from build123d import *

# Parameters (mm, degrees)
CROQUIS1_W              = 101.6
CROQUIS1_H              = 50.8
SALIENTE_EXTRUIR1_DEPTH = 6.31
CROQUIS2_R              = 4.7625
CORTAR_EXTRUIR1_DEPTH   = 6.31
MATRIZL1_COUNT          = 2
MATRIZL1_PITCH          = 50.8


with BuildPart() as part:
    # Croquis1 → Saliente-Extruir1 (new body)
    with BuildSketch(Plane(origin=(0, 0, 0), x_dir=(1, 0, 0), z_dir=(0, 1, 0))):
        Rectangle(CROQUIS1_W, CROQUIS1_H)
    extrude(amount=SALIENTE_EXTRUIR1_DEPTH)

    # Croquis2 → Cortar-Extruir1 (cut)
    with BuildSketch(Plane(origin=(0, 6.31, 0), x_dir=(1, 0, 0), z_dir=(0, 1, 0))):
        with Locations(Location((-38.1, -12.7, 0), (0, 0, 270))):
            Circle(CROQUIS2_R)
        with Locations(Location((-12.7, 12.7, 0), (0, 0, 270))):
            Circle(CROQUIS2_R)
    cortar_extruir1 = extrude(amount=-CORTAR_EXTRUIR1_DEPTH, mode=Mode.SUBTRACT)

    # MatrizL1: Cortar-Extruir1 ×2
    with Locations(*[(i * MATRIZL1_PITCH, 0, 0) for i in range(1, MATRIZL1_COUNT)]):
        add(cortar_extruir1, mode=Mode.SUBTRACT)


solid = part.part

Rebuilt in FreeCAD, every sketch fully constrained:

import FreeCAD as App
import Part
import Sketcher
Q = App.Units.Quantity


def add_polygon(sketch, points):
    """Adds a closed chain of lines whose ends are joined by coincident constraints."""
    first, n = sketch.GeometryCount, len(points)
    for a, b in zip(points, points[1:] + points[:1]):
        sketch.addGeometry(Part.LineSegment(App.Vector(*a, 0), App.Vector(*b, 0)), False)
    for i in range(n):
        sketch.addConstraint(Sketcher.Constraint("Coincident", first + i, 2, first + (i + 1) % n, 1))

doc = App.newDocument("Part")
body = doc.addObject("PartDesign::Body", "Body")

# Sketch on XZ plane
sketch1 = doc.addObject("Sketcher::SketchObject", "Sketch")
body.addObject(sketch1)
sketch1.AttachmentSupport = (doc.XZ_Plane, [""])
sketch1.MapMode = "FlatFace"
add_polygon(sketch1, [(-51, -25), (-51, 25), (51, 25), (51, -25)])  # lines 0-3
sketch1.addConstraint([
    Sketcher.Constraint("Vertical", 0),
    Sketcher.Constraint("Horizontal", 1),
    Sketcher.Constraint("Vertical", 2),
    Sketcher.Constraint("Horizontal", 3),
    Sketcher.Constraint("Symmetric", 0, 2, 2, 2, -1, 1),
    Sketcher.Constraint("DistanceX", 1, 1, 1, 2, Q("4 in")),
    Sketcher.Constraint("DistanceY", 0, 1, 0, 2, Q("2 in")),
])
pad1 = doc.addObject("PartDesign::Pad", "Pad")
body.addObject(pad1)
pad1.Profile = sketch1
pad1.Length = 6.31
pad1.Reversed = True

# Sketch on XZ plane
sketch2 = doc.addObject("Sketcher::SketchObject", "Sketch001")
body.addObject(sketch2)
sketch2.AttachmentSupport = (doc.XZ_Plane, [""])
sketch2.MapMode = "FlatFace"
sketch2.AttachmentOffset = App.Placement(App.Vector(0, 0, -6.31), App.Rotation())
sketch2.addGeometry([
    Part.Circle(App.Vector(-38.1, 12.7, 0), App.Vector(0, 0, 1), 4.8),
    Part.Circle(App.Vector(-12.7, -12.7, 0), App.Vector(0, 0, 1), 4.8),
], False)
sketch2.addConstraint([
    Sketcher.Constraint("Equal", 0, 1),
    Sketcher.Constraint("Diameter", 0, Q("0.375 in")),
    Sketcher.Constraint("DistanceX", 0, 3, 1, 3, Q("1 in")),
    Sketcher.Constraint("DistanceY", 1, 3, 0, 3, Q("1 in")),
    Sketcher.Constraint("DistanceX", 0, 3, -1, 1, Q("1.5 in")),
    Sketcher.Constraint("DistanceY", -1, 1, 0, 3, Q("0.5 in")),
])
pocket1 = doc.addObject("PartDesign::Pocket", "Pocket")
body.addObject(pocket1)
pocket1.Profile = sketch2
pocket1.Length = 6.31
pocket1.Reversed = True
doc.recompute()

linearpattern = doc.addObject("PartDesign::LinearPattern", "LinearPattern")
body.addObject(linearpattern)
linearpattern.Originals = [pocket1]
linearpattern.Direction = (doc.X_Axis, [""])
linearpattern.Mode = "offset"
linearpattern.Offset = Q("2 in")
linearpattern.Occurrences = 2
body.Tip = linearpattern

doc.recompute()
